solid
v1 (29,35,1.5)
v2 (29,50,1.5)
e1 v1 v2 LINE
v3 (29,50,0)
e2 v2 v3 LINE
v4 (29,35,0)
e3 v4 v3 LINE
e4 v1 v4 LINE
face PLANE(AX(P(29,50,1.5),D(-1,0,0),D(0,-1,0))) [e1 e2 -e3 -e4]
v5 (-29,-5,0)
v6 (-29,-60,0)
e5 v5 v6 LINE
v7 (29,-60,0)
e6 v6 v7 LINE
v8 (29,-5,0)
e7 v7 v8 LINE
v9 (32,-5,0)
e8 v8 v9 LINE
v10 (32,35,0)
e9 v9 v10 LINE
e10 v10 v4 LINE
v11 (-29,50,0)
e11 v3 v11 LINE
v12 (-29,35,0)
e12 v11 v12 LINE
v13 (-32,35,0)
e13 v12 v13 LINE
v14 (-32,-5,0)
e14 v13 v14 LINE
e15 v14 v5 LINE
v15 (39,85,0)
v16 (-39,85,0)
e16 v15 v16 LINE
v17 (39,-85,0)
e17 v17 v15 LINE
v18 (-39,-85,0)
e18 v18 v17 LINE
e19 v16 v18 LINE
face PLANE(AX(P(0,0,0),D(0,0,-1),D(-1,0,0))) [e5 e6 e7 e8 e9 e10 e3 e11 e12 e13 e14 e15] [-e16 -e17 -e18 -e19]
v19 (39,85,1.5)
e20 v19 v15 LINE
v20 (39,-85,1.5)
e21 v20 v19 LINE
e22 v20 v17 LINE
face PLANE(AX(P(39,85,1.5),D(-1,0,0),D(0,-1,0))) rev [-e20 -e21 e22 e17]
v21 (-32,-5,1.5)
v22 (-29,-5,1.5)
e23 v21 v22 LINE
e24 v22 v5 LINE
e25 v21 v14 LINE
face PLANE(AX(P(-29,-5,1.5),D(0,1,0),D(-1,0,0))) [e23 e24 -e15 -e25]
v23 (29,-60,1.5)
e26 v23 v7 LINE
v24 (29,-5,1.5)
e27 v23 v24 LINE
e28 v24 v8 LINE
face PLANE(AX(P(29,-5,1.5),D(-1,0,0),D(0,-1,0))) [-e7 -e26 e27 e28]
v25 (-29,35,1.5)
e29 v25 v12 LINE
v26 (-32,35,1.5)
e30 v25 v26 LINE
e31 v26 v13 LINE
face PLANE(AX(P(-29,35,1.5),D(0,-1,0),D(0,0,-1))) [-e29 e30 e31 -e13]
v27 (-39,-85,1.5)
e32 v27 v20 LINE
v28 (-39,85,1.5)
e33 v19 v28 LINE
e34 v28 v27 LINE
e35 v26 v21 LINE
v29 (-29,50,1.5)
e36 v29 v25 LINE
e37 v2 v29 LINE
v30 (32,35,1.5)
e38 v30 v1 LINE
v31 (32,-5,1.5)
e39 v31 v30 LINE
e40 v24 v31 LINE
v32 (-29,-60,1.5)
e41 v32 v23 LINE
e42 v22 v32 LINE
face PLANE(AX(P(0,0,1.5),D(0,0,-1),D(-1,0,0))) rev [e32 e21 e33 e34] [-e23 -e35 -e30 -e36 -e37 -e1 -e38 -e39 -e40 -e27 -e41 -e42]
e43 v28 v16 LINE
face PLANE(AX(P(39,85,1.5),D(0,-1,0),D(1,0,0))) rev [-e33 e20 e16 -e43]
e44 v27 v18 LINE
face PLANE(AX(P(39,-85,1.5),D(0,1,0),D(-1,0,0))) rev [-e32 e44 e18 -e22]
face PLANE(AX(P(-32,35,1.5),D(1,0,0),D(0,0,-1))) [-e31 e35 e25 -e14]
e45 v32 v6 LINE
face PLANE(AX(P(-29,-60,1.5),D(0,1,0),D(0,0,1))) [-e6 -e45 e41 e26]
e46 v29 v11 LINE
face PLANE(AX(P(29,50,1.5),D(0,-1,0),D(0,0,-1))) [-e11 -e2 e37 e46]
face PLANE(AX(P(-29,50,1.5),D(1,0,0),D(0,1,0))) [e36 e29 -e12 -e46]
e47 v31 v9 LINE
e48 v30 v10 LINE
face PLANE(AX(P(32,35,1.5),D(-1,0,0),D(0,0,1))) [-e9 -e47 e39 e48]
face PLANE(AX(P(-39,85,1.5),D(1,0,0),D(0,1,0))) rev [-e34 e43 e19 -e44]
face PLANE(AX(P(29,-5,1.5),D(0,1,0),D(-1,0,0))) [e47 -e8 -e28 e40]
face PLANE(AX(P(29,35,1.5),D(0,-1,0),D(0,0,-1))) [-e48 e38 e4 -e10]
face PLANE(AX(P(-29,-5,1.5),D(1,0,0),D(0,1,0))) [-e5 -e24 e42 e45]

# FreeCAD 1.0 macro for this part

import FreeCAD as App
import Part
import Sketcher
from FreeCAD import Vector
Q = App.Units.Quantity

doc = App.newDocument("Part")
params = doc.addObject("Spreadsheet::Sheet", "Params")
for row, (alias, value) in enumerate([
    ("sketch1_width", "78 mm"),
    ("sketch1_width2", "58 mm"),
    ("sketch1_width3", "3 mm"),
    ("sketch1_height", "170 mm"),
    ("sketch1_height2", "15 mm"),
    ("pad1_length", "1.5 mm"),
], start=1):
    params.set(f"A{row}", alias)
    params.set(f"B{row}", "=" + value)
    params.setAlias(f"B{row}", alias)

body = doc.addObject("PartDesign::Body", "Body")

# Sketch on XY plane
sketch1 = body.newObject("Sketcher::SketchObject", "Sketch")
sketch1.AttachmentSupport = (doc.getObject("XY_Plane"), [""])
sketch1.MapMode = "FlatFace"
sketch1.addGeometry([
    Part.LineSegment(Vector(-39, 85, 0), Vector(-39, -85, 0)),  # 0
    Part.LineSegment(Vector(-39, -85, 0), Vector(39, -85, 0)),  # 1
    Part.LineSegment(Vector(39, -85, 0), Vector(39, 85, 0)),  # 2
    Part.LineSegment(Vector(39, 85, 0), Vector(-39, 85, 0)),  # 3
    Part.LineSegment(Vector(-29, 50, 0), Vector(29, 50, 0)),  # 4
    Part.LineSegment(Vector(29, 50, 0), Vector(29, 35, 0)),  # 5
    Part.LineSegment(Vector(29, 35, 0), Vector(32, 35, 0)),  # 6
    Part.LineSegment(Vector(32, 35, 0), Vector(32, -5, 0)),  # 7
    Part.LineSegment(Vector(32, -5, 0), Vector(29, -5, 0)),  # 8
    Part.LineSegment(Vector(29, -5, 0), Vector(29, -60, 0)),  # 9
    Part.LineSegment(Vector(29, -60, 0), Vector(-29, -60, 0)),  # 10
    Part.LineSegment(Vector(-29, -60, 0), Vector(-29, -5, 0)),  # 11
    Part.LineSegment(Vector(-29, -5, 0), Vector(-32, -5, 0)),  # 12
    Part.LineSegment(Vector(-32, -5, 0), Vector(-32, 35, 0)),  # 13
    Part.LineSegment(Vector(-32, 35, 0), Vector(-29, 35, 0)),  # 14
    Part.LineSegment(Vector(-29, 35, 0), Vector(-29, 50, 0)),  # 15
], False)
sketch1.addConstraint([
    Sketcher.Constraint("Coincident", 0, 2, 1, 1),
    Sketcher.Constraint("Coincident", 1, 2, 2, 1),
    Sketcher.Constraint("Coincident", 2, 2, 3, 1),
    Sketcher.Constraint("Coincident", 3, 2, 0, 1),
    Sketcher.Constraint("Coincident", 4, 2, 5, 1),
    Sketcher.Constraint("Coincident", 5, 2, 6, 1),
    Sketcher.Constraint("Coincident", 6, 2, 7, 1),
    Sketcher.Constraint("Coincident", 7, 2, 8, 1),
    Sketcher.Constraint("Coincident", 8, 2, 9, 1),
    Sketcher.Constraint("Coincident", 9, 2, 10, 1),
    Sketcher.Constraint("Coincident", 10, 2, 11, 1),
    Sketcher.Constraint("Coincident", 11, 2, 12, 1),
    Sketcher.Constraint("Coincident", 12, 2, 13, 1),
    Sketcher.Constraint("Coincident", 13, 2, 14, 1),
    Sketcher.Constraint("Coincident", 14, 2, 15, 1),
    Sketcher.Constraint("Coincident", 15, 2, 4, 1),
    Sketcher.Constraint("Vertical", 0),
    Sketcher.Constraint("Horizontal", 1),
    Sketcher.Constraint("Vertical", 2),
    Sketcher.Constraint("Horizontal", 3),
    Sketcher.Constraint("Horizontal", 4),
    Sketcher.Constraint("Vertical", 5),
    Sketcher.Constraint("Horizontal", 6),
    Sketcher.Constraint("Vertical", 7),
    Sketcher.Constraint("Horizontal", 8),
    Sketcher.Constraint("Vertical", 9),
    Sketcher.Constraint("Horizontal", 10),
    Sketcher.Constraint("Vertical", 11),
    Sketcher.Constraint("Horizontal", 12),
    Sketcher.Constraint("Vertical", 13),
    Sketcher.Constraint("Horizontal", 14),
    Sketcher.Constraint("Vertical", 15),
    Sketcher.Constraint("Symmetric", 0, 2, 2, 2, -1, 1),
    Sketcher.Constraint("Symmetric", 8, 2, 11, 2, -2),
    Sketcher.Constraint("Symmetric", 6, 2, 13, 2, -2),
    Sketcher.Constraint("Vertical", 5, 2, 8, 2),
    Sketcher.Constraint("Vertical", 11, 2, 14, 2),
    Sketcher.Constraint("DistanceX", 1, 1, 1, 2, Q("78 mm")),
    Sketcher.Constraint("DistanceX", 4, 1, 4, 2, Q("58 mm")),
    Sketcher.Constraint("DistanceX", 6, 1, 6, 2, Q("3 mm")),
    Sketcher.Constraint("DistanceY", 0, 2, 0, 1, Q("170 mm")),
    Sketcher.Constraint("DistanceY", 5, 2, 5, 1, Q("15 mm")),
    Sketcher.Constraint("DistanceY", 7, 2, 7, 1, Q("40 mm")),
    Sketcher.Constraint("DistanceY", 9, 2, 9, 1, Q("55 mm")),
    Sketcher.Constraint("DistanceY", -1, 1, 4, 2, Q("50 mm")),
])
sketch1.setExpression("Constraints[37]", "Params.sketch1_width")
sketch1.setExpression("Constraints[38]", "Params.sketch1_width2")
sketch1.setExpression("Constraints[39]", "Params.sketch1_width3")
sketch1.setExpression("Constraints[40]", "Params.sketch1_height")
sketch1.setExpression("Constraints[41]", "Params.sketch1_height2")
pad1 = body.newObject("PartDesign::Pad", "Pad")
pad1.Profile = sketch1
pad1.setExpression("Length", "Params.pad1_length")

doc.recompute()
